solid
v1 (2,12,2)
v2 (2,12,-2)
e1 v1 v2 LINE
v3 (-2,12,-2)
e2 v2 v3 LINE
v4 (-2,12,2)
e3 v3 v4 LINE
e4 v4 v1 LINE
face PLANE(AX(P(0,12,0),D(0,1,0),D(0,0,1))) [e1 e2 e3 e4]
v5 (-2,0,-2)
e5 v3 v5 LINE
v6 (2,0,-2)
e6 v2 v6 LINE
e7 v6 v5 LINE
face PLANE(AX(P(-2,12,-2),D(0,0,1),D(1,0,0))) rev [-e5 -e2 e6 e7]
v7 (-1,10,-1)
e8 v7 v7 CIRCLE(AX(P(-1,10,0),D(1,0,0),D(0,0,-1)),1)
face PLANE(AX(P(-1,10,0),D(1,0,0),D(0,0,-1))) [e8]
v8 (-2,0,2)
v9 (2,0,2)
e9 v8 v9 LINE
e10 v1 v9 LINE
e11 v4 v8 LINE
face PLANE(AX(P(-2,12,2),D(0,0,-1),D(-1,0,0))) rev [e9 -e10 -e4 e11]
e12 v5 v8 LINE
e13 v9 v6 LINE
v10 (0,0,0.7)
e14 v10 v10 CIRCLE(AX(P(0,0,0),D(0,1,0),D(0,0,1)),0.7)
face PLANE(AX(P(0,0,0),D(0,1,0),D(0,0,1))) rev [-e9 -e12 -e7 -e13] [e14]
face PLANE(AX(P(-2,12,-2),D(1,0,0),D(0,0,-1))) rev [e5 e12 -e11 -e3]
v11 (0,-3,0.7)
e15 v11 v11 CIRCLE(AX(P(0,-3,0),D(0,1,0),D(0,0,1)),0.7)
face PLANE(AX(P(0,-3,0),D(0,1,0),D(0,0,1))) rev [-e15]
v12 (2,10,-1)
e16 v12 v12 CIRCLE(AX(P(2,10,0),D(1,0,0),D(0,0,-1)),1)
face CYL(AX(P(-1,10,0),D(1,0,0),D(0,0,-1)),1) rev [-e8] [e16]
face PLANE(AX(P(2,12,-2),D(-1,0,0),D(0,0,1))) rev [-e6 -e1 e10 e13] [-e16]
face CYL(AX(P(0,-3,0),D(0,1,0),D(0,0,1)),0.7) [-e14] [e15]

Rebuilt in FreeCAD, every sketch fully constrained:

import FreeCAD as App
import Part
import Sketcher
from FreeCAD import Vector


def add_polygon(sketch, points):
    """Adds a closed chain of lines whose ends are joined by coincident constraints."""
    first, n = sketch.GeometryCount, len(points)
    for a, b in zip(points, points[1:] + points[:1]):
        sketch.addGeometry(Part.LineSegment(App.Vector(*a, 0), App.Vector(*b, 0)), False)
    for i in range(n):
        sketch.addConstraint(Sketcher.Constraint("Coincident", first + i, 2, first + (i + 1) % n, 1))

doc = App.newDocument("Part")
body = doc.addObject("PartDesign::Body", "Body")

sketch1 = doc.addObject("Sketcher::SketchObject", "Sketch")
body.addObject(sketch1)
sketch1.AttachmentSupport = (doc.XZ_Plane, [""])
sketch1.MapMode = "FlatFace"
add_polygon(sketch1, [(-2, -2), (-2, 2), (2, 2), (2, -2)])
sketch1.addConstraint(Sketcher.Constraint("Vertical", 0))
sketch1.addConstraint(Sketcher.Constraint("Horizontal", 1))
sketch1.addConstraint(Sketcher.Constraint("Vertical", 2))
sketch1.addConstraint(Sketcher.Constraint("Horizontal", 3))
sketch1.addConstraint(Sketcher.Constraint("Symmetric", 0, 2, 2, 2, -1, 1))
sketch1.addConstraint(Sketcher.Constraint("Equal", 3, 0))
sketch1.addConstraint(Sketcher.Constraint("DistanceX", 1, 1, 1, 2, 4.0))
pad1 = doc.addObject("PartDesign::Pad", "Pad")
body.addObject(pad1)
pad1.Profile = sketch1
pad1.Length = 12
pad1.Reversed = True

sketch2 = doc.addObject("Sketcher::SketchObject", "Sketch001")
body.addObject(sketch2)
sketch2.AttachmentSupport = (doc.XZ_Plane, [""])
sketch2.MapMode = "FlatFace"
sketch2.addGeometry(Part.Circle(Vector(0, 0, 0), Vector(0, 0, 1), 0.7), False)
sketch2.addConstraint(Sketcher.Constraint("Coincident", 0, 3, -1, 1))
sketch2.addConstraint(Sketcher.Constraint("Diameter", 0, 1.4))
pad2 = doc.addObject("PartDesign::Pad", "Pad001")
body.addObject(pad2)
pad2.Profile = sketch2
pad2.Length = 3

sketch3 = doc.addObject("Sketcher::SketchObject", "Sketch002")
body.addObject(sketch3)
sketch3.AttachmentSupport = (doc.YZ_Plane, [""])
sketch3.MapMode = "FlatFace"
sketch3.AttachmentOffset = App.Placement(Vector(0, 0, 2), App.Rotation())
sketch3.addGeometry(Part.Circle(Vector(10, 0, 0), Vector(0, 0, 1), 1), False)
sketch3.addConstraint(Sketcher.Constraint("PointOnObject", 0, 3, -1))
sketch3.addConstraint(Sketcher.Constraint("Diameter", 0, 2.0))
sketch3.addConstraint(Sketcher.Constraint("DistanceX", -1, 1, 0, 3, 10.0))
pocket1 = doc.addObject("PartDesign::Pocket", "Pocket")
body.addObject(pocket1)
pocket1.Profile = sketch3
pocket1.Length = 3

doc.recompute()
